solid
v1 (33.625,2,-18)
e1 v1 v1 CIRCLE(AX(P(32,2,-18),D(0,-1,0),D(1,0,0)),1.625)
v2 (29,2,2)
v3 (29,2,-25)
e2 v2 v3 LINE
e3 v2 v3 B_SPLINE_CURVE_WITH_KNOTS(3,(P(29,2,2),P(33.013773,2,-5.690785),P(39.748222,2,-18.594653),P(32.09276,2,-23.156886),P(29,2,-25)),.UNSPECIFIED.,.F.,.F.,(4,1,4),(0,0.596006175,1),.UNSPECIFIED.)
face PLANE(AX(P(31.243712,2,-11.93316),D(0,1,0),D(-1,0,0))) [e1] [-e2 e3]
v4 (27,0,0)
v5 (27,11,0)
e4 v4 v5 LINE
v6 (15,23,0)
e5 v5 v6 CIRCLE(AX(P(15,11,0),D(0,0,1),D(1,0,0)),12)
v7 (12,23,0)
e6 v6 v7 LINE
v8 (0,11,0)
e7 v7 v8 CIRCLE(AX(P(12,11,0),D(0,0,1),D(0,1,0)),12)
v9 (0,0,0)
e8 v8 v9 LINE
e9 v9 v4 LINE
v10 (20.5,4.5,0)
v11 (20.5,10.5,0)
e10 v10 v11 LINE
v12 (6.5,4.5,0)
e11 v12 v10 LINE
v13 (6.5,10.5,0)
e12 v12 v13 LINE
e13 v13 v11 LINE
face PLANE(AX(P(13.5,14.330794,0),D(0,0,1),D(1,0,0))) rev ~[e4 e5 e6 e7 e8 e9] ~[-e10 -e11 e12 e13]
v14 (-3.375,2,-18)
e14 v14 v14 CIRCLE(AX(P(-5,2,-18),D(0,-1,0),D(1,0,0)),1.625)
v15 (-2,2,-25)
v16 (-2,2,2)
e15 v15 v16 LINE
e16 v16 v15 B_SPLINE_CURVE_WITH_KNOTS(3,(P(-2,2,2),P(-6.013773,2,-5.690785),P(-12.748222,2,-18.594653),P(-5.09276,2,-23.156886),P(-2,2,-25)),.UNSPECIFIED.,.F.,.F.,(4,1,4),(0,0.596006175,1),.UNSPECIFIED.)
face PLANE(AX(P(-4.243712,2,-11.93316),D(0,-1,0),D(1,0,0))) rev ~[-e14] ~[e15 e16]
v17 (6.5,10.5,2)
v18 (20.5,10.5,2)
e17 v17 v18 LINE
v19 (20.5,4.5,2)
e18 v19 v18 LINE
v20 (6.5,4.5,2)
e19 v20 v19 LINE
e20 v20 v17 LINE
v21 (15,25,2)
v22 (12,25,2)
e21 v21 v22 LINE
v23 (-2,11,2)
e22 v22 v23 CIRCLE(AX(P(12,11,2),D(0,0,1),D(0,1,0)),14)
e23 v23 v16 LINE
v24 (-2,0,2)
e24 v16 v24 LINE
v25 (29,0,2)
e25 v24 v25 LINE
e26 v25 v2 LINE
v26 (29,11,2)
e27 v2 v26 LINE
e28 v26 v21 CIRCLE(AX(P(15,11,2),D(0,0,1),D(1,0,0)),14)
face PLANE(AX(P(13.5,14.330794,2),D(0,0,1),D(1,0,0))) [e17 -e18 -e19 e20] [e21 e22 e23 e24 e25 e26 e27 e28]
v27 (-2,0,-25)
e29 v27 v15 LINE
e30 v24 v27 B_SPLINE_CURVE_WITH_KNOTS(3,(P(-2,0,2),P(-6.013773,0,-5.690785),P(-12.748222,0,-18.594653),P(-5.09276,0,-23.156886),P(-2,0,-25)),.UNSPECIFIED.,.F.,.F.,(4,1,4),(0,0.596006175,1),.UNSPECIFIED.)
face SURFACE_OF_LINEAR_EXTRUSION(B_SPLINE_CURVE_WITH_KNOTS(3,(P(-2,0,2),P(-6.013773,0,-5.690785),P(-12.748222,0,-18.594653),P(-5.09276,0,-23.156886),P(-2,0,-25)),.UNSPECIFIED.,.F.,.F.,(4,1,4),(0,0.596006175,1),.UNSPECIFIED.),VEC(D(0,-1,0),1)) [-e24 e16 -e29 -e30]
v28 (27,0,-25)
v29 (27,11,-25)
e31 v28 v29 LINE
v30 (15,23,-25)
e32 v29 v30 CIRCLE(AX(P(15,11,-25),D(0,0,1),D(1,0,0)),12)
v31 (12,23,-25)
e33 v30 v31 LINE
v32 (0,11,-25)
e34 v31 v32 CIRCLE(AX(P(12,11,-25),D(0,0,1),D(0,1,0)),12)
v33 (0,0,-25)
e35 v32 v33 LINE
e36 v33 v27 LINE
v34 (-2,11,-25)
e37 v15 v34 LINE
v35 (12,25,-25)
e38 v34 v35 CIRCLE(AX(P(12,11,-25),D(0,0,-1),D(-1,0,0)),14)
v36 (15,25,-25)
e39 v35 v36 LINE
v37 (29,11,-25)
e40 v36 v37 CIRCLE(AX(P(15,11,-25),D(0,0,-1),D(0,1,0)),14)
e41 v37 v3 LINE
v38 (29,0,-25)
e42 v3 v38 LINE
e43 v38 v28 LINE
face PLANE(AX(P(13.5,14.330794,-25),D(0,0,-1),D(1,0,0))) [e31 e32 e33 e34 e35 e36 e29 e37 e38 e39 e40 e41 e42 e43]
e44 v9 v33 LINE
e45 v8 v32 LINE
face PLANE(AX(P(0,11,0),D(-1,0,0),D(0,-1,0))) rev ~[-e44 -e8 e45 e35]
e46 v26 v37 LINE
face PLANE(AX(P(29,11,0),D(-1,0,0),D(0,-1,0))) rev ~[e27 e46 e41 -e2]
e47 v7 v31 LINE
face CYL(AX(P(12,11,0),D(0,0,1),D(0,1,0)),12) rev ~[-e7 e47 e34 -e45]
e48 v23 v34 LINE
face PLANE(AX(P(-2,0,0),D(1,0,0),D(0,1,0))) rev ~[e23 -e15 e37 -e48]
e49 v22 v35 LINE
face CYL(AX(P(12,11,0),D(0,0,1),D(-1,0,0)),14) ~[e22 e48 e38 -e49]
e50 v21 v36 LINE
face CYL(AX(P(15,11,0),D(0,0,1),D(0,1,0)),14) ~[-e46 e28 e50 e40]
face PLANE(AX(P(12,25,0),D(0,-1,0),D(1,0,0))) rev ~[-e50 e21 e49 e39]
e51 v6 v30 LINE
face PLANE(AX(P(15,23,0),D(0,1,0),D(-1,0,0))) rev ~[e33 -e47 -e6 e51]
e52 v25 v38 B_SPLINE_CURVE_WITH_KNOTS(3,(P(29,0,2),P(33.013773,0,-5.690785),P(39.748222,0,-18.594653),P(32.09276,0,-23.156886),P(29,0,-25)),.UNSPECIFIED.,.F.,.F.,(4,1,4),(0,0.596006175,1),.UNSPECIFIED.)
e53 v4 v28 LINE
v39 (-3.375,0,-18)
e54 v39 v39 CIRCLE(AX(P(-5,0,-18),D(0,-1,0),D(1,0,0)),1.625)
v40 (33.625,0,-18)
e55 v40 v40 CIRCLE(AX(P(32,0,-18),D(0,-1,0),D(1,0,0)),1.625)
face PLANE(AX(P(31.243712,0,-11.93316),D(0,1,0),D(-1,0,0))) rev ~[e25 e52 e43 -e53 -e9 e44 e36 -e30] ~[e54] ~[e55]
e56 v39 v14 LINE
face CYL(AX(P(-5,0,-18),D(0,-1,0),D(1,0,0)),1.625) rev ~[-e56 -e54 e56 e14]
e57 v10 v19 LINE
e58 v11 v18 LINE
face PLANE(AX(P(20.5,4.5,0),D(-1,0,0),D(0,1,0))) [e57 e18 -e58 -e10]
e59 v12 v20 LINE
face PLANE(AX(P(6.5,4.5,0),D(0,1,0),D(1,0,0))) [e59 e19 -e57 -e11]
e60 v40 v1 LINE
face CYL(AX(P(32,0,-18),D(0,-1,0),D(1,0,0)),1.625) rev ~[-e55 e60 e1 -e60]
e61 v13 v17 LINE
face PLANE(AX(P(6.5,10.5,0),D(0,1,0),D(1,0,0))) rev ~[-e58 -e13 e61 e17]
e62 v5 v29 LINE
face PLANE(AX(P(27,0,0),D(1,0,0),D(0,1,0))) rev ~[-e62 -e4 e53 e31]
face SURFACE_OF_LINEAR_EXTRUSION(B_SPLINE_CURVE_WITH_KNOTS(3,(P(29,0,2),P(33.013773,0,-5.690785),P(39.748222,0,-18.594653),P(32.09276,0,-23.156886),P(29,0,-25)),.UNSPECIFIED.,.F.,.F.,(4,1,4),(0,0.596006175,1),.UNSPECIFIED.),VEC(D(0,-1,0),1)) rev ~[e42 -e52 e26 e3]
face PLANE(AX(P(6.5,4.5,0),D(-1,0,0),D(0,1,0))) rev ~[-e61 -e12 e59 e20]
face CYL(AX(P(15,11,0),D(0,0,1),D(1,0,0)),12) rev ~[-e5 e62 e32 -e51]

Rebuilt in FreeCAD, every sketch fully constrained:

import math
import FreeCAD as App
import Part
import Sketcher
from FreeCAD import Vector


def add_polygon(sketch, points):
    """Adds a closed chain of lines whose ends are joined by coincident constraints."""
    first, n = sketch.GeometryCount, len(points)
    for a, b in zip(points, points[1:] + points[:1]):
        sketch.addGeometry(Part.LineSegment(App.Vector(*a, 0), App.Vector(*b, 0)), False)
    for i in range(n):
        sketch.addConstraint(Sketcher.Constraint("Coincident", first + i, 2, first + (i + 1) % n, 1))

doc = App.newDocument("Part")
body = doc.addObject("PartDesign::Body", "Body")

sketch1 = body.newObject("Sketcher::SketchObject", "Sketch")
sketch1.AttachmentSupport = (doc.getObject("XY_Plane"), [""])
sketch1.MapMode = "FlatFace"
sketch1.addGeometry(Part.LineSegment(Vector(29, 0, 0), Vector(29, 11, 0)), False)
sketch1.addGeometry(Part.ArcOfCircle(Part.Circle(Vector(15, 11, 0), Vector(0, 0, 1), 14), math.radians(0), math.radians(90)), False)
sketch1.addGeometry(Part.LineSegment(Vector(15, 25, 0), Vector(12, 25, 0)), False)
sketch1.addGeometry(Part.ArcOfCircle(Part.Circle(Vector(12, 11, 0), Vector(0, 0, 1), 14), math.radians(90), math.radians(180)), False)
sketch1.addGeometry(Part.LineSegment(Vector(-2, 11, 0), Vector(-2, 0, 0)), False)
sketch1.addGeometry(Part.LineSegment(Vector(-2, 0, 0), Vector(29, 0, 0)), False)
add_polygon(sketch1, [(20.5, 4.5), (6.5, 4.5), (6.5, 10.5), (20.5, 10.5)])
sketch1.addConstraint(Sketcher.Constraint("Tangent", 0, 2, 1, 1))
sketch1.addConstraint(Sketcher.Constraint("Tangent", 1, 2, 2, 1))
sketch1.addConstraint(Sketcher.Constraint("Tangent", 2, 2, 3, 1))
sketch1.addConstraint(Sketcher.Constraint("Tangent", 3, 2, 4, 1))
sketch1.addConstraint(Sketcher.Constraint("Coincident", 4, 2, 5, 1))
sketch1.addConstraint(Sketcher.Constraint("Coincident", 5, 2, 0, 1))
sketch1.addConstraint(Sketcher.Constraint("Vertical", 0))
sketch1.addConstraint(Sketcher.Constraint("Horizontal", 2))
sketch1.addConstraint(Sketcher.Constraint("Vertical", 4))
sketch1.addConstraint(Sketcher.Constraint("Horizontal", 5))
sketch1.addConstraint(Sketcher.Constraint("Horizontal", 6))
sketch1.addConstraint(Sketcher.Constraint("Vertical", 7))
sketch1.addConstraint(Sketcher.Constraint("Horizontal", 8))
sketch1.addConstraint(Sketcher.Constraint("Vertical", 9))
sketch1.addConstraint(Sketcher.Constraint("Equal", 1, 3))
sketch1.addConstraint(Sketcher.Constraint("PointOnObject", 4, 2, -1))
sketch1.addConstraint(Sketcher.Constraint("Radius", 1, 14.0))
sketch1.addConstraint(Sketcher.Constraint("DistanceX", 2, 2, 2, 1, 3.0))
sketch1.addConstraint(Sketcher.Constraint("DistanceX", 6, 2, 6, 1, 14.0))
sketch1.addConstraint(Sketcher.Constraint("DistanceY", 0, 1, 0, 2, 11.0))
sketch1.addConstraint(Sketcher.Constraint("DistanceY", 7, 1, 7, 2, 6.0))
sketch1.addConstraint(Sketcher.Constraint("DistanceX", -1, 1, 1, 3, 15.0))
sketch1.addConstraint(Sketcher.Constraint("DistanceX", -1, 1, 6, 2, 6.5))
sketch1.addConstraint(Sketcher.Constraint("DistanceY", -1, 1, 6, 2, 4.5))
pad1 = body.newObject("PartDesign::Pad", "Pad")
pad1.Profile = sketch1
pad1.Length = 2

sketch2 = body.newObject("Sketcher::SketchObject", "Sketch001")
sketch2.AttachmentSupport = (doc.getObject("XY_Plane"), [""])
sketch2.MapMode = "FlatFace"
sketch2.addGeometry(Part.LineSegment(Vector(0, 11, 0), Vector(0, 0, 0)), False)
sketch2.addGeometry(Part.LineSegment(Vector(0, 0, 0), Vector(-2, 0, 0)), False)
sketch2.addGeometry(Part.LineSegment(Vector(-2, 0, 0), Vector(-2, 11, 0)), False)
sketch2.addGeometry(Part.ArcOfCircle(Part.Circle(Vector(12, 11, 0), Vector(0, 0, 1), 14), math.radians(90), math.radians(180)), False)
sketch2.addGeometry(Part.LineSegment(Vector(12, 25, 0), Vector(15, 25, 0)), False)
sketch2.addGeometry(Part.ArcOfCircle(Part.Circle(Vector(15, 11, 0), Vector(0, 0, 1), 14), math.radians(0), math.radians(90)), False)
sketch2.addGeometry(Part.LineSegment(Vector(29, 11, 0), Vector(29, 0, 0)), False)
sketch2.addGeometry(Part.LineSegment(Vector(29, 0, 0), Vector(27, 0, 0)), False)
sketch2.addGeometry(Part.LineSegment(Vector(27, 0, 0), Vector(27, 11, 0)), False)
sketch2.addGeometry(Part.ArcOfCircle(Part.Circle(Vector(15, 11, 0), Vector(0, 0, 1), 12), math.radians(0), math.radians(90)), False)
sketch2.addGeometry(Part.LineSegment(Vector(15, 23, 0), Vector(12, 23, 0)), False)
sketch2.addGeometry(Part.ArcOfCircle(Part.Circle(Vector(12, 11, 0), Vector(0, 0, 1), 12), math.radians(90), math.radians(180)), False)
sketch2.addConstraint(Sketcher.Constraint("Coincident", 0, 2, 1, 1))
sketch2.addConstraint(Sketcher.Constraint("Coincident", 1, 2, 2, 1))
sketch2.addConstraint(Sketcher.Constraint("Tangent", 2, 2, 3, 2))
sketch2.addConstraint(Sketcher.Constraint("Tangent", 3, 1, 4, 1))
sketch2.addConstraint(Sketcher.Constraint("Tangent", 4, 2, 5, 2))
sketch2.addConstraint(Sketcher.Constraint("Tangent", 5, 1, 6, 1))
sketch2.addConstraint(Sketcher.Constraint("Coincident", 6, 2, 7, 1))
sketch2.addConstraint(Sketcher.Constraint("Coincident", 7, 2, 8, 1))
sketch2.addConstraint(Sketcher.Constraint("Tangent", 8, 2, 9, 1))
sketch2.addConstraint(Sketcher.Constraint("Tangent", 9, 2, 10, 1))
sketch2.addConstraint(Sketcher.Constraint("Tangent", 10, 2, 11, 1))
sketch2.addConstraint(Sketcher.Constraint("Tangent", 11, 2, 0, 1))
sketch2.addConstraint(Sketcher.Constraint("Vertical", 0))
sketch2.addConstraint(Sketcher.Constraint("Horizontal", 1))
sketch2.addConstraint(Sketcher.Constraint("Vertical", 2))
sketch2.addConstraint(Sketcher.Constraint("Horizontal", 4))
sketch2.addConstraint(Sketcher.Constraint("Vertical", 6))
sketch2.addConstraint(Sketcher.Constraint("Horizontal", 7))
sketch2.addConstraint(Sketcher.Constraint("Vertical", 8))
sketch2.addConstraint(Sketcher.Constraint("Horizontal", 10))
sketch2.addConstraint(Sketcher.Constraint("Coincident", 0, 2, -1, 1))
sketch2.addConstraint(Sketcher.Constraint("Coincident", 9, 3, 5, 3))
sketch2.addConstraint(Sketcher.Constraint("Coincident", 11, 3, 3, 3))
sketch2.addConstraint(Sketcher.Constraint("Equal", 3, 5))
sketch2.addConstraint(Sketcher.Constraint("PointOnObject", 6, 2, -1))
sketch2.addConstraint(Sketcher.Constraint("Radius", 3, 14.0))
sketch2.addConstraint(Sketcher.Constraint("Radius", 9, 12.0))
sketch2.addConstraint(Sketcher.Constraint("DistanceX", 4, 1, 4, 2, 3.0))
sketch2.addConstraint(Sketcher.Constraint("DistanceY", 0, 2, 0, 1, 11.0))
pad2 = body.newObject("PartDesign::Pad", "Pad001")
pad2.Profile = sketch2
pad2.Length = 25
pad2.Reversed = True

sketch3 = body.newObject("Sketcher::SketchObject", "Sketch002")
sketch3.AttachmentSupport = (doc.getObject("XZ_Plane"), [""])
sketch3.MapMode = "FlatFace"
sketch3.addGeometry(Part.BSplineCurve([Vector(29, 2, 0), Vector(33.013773, -5.690785, 0), Vector(39.748222, -18.594653, 0), Vector(32.09276, -23.156886, 0), Vector(29, -25, 0)], [4, 1, 4], [0, 0.596006175, 1], False, 3, [1, 1, 1, 1, 1], False), False)
sketch3.addGeometry(Part.LineSegment(Vector(29, 2, 0), Vector(29, -25, 0)), False)
sketch3.addGeometry(Part.Circle(Vector(32, -18, 0), Vector(0, 0, 1), 1.625), False)
sketch3.addGeometry(Part.LineSegment(Vector(-2, -25, 0), Vector(-2, 2, 0)), False)
sketch3.addGeometry(Part.BSplineCurve([Vector(-2, 2, 0), Vector(-6.013773, -5.690785, 0), Vector(-12.748222, -18.594653, 0), Vector(-5.09276, -23.156886, 0), Vector(-2, -25, 0)], [4, 1, 4], [0, 0.596006175, 1], False, 3, [1, 1, 1, 1, 1], False), False)
sketch3.addGeometry(Part.Circle(Vector(-5, -18, 0), Vector(0, 0, 1), 1.625), False)
sketch3.addConstraint(Sketcher.Constraint("Block", 0))
sketch3.addConstraint(Sketcher.Constraint("Block", 4))
sketch3.addConstraint(Sketcher.Constraint("Coincident", 0, 1, 1, 1))
sketch3.addConstraint(Sketcher.Constraint("Coincident", 1, 2, 0, 2))
sketch3.addConstraint(Sketcher.Constraint("Coincident", 3, 1, 4, 2))
sketch3.addConstraint(Sketcher.Constraint("Coincident", 4, 1, 3, 2))
sketch3.addConstraint(Sketcher.Constraint("Equal", 2, 5))
sketch3.addConstraint(Sketcher.Constraint("Horizontal", 2, 3, 5, 3))
sketch3.addConstraint(Sketcher.Constraint("Diameter", 2, 3.25))
sketch3.addConstraint(Sketcher.Constraint("DistanceX", -1, 1, 2, 3, 32.0))
sketch3.addConstraint(Sketcher.Constraint("DistanceY", 2, 3, -1, 1, 18.0))
sketch3.addConstraint(Sketcher.Constraint("DistanceX", 5, 3, -1, 1, 5.0))
pad3 = body.newObject("PartDesign::Pad", "Pad002")
pad3.Profile = sketch3
pad3.Length = 2
pad3.Reversed = True

doc.recompute()
